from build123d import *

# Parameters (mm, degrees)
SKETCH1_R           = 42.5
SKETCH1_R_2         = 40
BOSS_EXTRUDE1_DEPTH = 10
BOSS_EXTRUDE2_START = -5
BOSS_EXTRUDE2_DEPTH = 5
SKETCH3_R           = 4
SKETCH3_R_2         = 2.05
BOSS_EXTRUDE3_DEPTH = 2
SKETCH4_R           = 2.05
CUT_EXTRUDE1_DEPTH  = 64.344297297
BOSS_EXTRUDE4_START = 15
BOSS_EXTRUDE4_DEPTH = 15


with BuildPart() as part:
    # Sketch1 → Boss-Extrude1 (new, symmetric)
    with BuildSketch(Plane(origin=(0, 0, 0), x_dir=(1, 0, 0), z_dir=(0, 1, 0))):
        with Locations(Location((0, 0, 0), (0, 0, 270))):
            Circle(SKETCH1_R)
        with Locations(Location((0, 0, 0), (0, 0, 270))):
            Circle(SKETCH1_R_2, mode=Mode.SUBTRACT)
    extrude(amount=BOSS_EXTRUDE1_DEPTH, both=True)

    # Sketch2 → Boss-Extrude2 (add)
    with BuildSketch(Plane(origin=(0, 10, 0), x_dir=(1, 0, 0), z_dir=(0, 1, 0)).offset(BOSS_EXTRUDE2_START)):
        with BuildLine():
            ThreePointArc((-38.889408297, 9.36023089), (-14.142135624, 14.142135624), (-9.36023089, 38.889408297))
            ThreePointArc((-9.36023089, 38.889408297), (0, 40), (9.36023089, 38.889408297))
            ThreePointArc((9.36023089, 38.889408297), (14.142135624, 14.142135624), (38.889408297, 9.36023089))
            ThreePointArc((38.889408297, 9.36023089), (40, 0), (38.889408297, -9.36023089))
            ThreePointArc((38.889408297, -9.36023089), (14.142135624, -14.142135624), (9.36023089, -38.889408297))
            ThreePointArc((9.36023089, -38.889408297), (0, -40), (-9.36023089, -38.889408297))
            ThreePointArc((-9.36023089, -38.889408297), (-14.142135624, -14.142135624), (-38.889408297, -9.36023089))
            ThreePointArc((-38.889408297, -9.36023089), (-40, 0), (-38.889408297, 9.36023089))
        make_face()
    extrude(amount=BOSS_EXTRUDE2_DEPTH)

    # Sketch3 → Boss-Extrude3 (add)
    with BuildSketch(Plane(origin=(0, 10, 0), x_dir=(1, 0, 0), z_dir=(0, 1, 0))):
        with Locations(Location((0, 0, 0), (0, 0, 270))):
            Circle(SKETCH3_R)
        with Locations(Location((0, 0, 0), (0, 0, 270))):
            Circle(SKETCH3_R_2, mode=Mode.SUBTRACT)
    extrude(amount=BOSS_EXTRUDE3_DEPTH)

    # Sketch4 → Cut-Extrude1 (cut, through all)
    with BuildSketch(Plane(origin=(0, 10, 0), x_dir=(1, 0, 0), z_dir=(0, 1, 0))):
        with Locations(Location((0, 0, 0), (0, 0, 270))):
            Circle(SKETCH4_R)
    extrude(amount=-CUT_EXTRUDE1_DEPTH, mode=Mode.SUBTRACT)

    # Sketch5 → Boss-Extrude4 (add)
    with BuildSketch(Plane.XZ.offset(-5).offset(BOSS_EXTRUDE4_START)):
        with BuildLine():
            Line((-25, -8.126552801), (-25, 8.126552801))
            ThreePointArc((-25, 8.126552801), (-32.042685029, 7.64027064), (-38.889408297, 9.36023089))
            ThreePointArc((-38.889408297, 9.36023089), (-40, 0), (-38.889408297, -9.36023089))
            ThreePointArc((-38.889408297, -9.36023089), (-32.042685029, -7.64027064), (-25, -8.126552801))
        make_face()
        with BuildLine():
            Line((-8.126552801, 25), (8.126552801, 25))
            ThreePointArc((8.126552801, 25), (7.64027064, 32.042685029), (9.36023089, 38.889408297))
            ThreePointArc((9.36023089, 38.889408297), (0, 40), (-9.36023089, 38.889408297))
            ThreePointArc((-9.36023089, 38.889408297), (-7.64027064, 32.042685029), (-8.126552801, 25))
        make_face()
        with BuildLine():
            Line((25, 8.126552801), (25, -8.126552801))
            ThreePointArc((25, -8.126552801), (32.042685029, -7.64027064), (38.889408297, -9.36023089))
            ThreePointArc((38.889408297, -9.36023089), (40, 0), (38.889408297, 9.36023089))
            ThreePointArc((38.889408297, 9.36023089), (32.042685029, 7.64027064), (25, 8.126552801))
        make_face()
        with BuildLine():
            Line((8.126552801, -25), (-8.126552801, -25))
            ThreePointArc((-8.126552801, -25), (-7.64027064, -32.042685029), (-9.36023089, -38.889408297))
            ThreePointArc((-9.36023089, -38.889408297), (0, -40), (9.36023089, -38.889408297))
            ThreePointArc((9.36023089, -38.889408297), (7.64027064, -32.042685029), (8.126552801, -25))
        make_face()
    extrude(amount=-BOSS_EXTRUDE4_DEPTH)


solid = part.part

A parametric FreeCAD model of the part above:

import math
import FreeCAD as App
import Part
import Sketcher
from FreeCAD import Vector
Q = App.Units.Quantity

doc = App.newDocument("Part")
body = doc.addObject("PartDesign::Body", "Body")

sketch1 = body.newObject("Sketcher::SketchObject", "Sketch")
sketch1.AttachmentSupport = (doc.getObject("XZ_Plane"), [""])
sketch1.MapMode = "FlatFace"
sketch1.addGeometry([
    Part.Circle(Vector(0, 0, 0), Vector(0, 0, 1), 42.5),
    Part.Circle(Vector(0, 0, 0), Vector(0, 0, 1), 40),
], False)
sketch1.addConstraint([
    Sketcher.Constraint("Coincident", 0, 3, -1, 1),
    Sketcher.Constraint("Coincident", 1, 3, -1, 1),
    Sketcher.Constraint("Diameter", 0, Q("85 mm")),
    Sketcher.Constraint("Diameter", 1, Q("80 mm")),
])
pad1 = body.newObject("PartDesign::Pad", "Pad")
pad1.Profile = sketch1
pad1.Length = 20
pad1.Midplane = True

sketch2 = body.newObject("Sketcher::SketchObject", "Sketch001")
sketch2.AttachmentSupport = (doc.getObject("XZ_Plane"), [""])
sketch2.MapMode = "FlatFace"
sketch2.AttachmentOffset = App.Placement(Vector(0, 0, -5), App.Rotation())
sketch2.addGeometry([
    Part.ArcOfCircle(Part.Circle(Vector(-30.052038, -30.052038, 0), Vector(0, 0, 1), 22.5), math.radians(-23.127092), math.radians(113.127092)),
    Part.ArcOfCircle(Part.Circle(Vector(0, 0, 0), Vector(0, 0, 1), 40), math.radians(166.466976), math.radians(193.533024)),
    Part.ArcOfCircle(Part.Circle(Vector(-30.052038, 30.052038, 0), Vector(0, 0, 1), 22.5), math.radians(-113.127092), math.radians(23.127092)),
    Part.ArcOfCircle(Part.Circle(Vector(0, 0, 0), Vector(0, 0, 1), 40), math.radians(76.466976), math.radians(103.533024)),
    Part.ArcOfCircle(Part.Circle(Vector(30.052038, 30.052038, 0), Vector(0, 0, 1), 22.5), math.radians(156.872908), math.radians(293.127092)),
    Part.ArcOfCircle(Part.Circle(Vector(0, 0, 0), Vector(0, 0, 1), 40), math.radians(-13.533024), math.radians(13.533024)),
    Part.ArcOfCircle(Part.Circle(Vector(30.052038, -30.052038, 0), Vector(0, 0, 1), 22.5), math.radians(66.872908), math.radians(203.127092)),
    Part.ArcOfCircle(Part.Circle(Vector(0, 0, 0), Vector(0, 0, 1), 40), math.radians(-103.533024), math.radians(-76.466976)),
], False)
sketch2.addConstraint([
    Sketcher.Constraint("Coincident", 0, 2, 1, 2),
    Sketcher.Constraint("Coincident", 1, 1, 2, 1),
    Sketcher.Constraint("Coincident", 2, 2, 3, 2),
    Sketcher.Constraint("Coincident", 3, 1, 4, 1),
    Sketcher.Constraint("Coincident", 4, 2, 5, 2),
    Sketcher.Constraint("Coincident", 5, 1, 6, 1),
    Sketcher.Constraint("Coincident", 6, 2, 7, 2),
    Sketcher.Constraint("Coincident", 7, 1, 0, 1),
    Sketcher.Constraint("Coincident", 1, 3, -1, 1),
    Sketcher.Constraint("Coincident", 3, 3, -1, 1),
    Sketcher.Constraint("Coincident", 5, 3, -1, 1),
    Sketcher.Constraint("Coincident", 7, 3, -1, 1),
    Sketcher.Constraint("Equal", 0, 2),
    Sketcher.Constraint("Equal", 1, 3),
    Sketcher.Constraint("Equal", 2, 4),
    Sketcher.Constraint("Equal", 3, 5),
    Sketcher.Constraint("Equal", 4, 6),
    Sketcher.Constraint("Equal", 5, 7),
    Sketcher.Constraint("Symmetric", 0, 3, 4, 3, -1, 1),
    Sketcher.Constraint("Symmetric", 2, 3, 6, 3, -1, 1),
    Sketcher.Constraint("Symmetric", 2, 3, 4, 3, -2),
    Sketcher.Constraint("Radius", 1, Q("40 mm")),
    Sketcher.Constraint("Radius", 0, Q("22.5 mm")),
    Sketcher.Constraint("DistanceX", 0, 3, -1, 1, Q("30.052038 mm")),
    Sketcher.Constraint("DistanceY", 0, 3, -1, 1, Q("30.052038 mm")),
])
pad2 = body.newObject("PartDesign::Pad", "Pad001")
pad2.Profile = sketch2
pad2.Length = 5
pad2.Reversed = True

sketch3 = body.newObject("Sketcher::SketchObject", "Sketch002")
sketch3.AttachmentSupport = (doc.getObject("XZ_Plane"), [""])
sketch3.MapMode = "FlatFace"
sketch3.AttachmentOffset = App.Placement(Vector(0, 0, -10), App.Rotation())
sketch3.addGeometry([
    Part.Circle(Vector(0, 0, 0), Vector(0, 0, 1), 4),
    Part.Circle(Vector(0, 0, 0), Vector(0, 0, 1), 2.05),
], False)
sketch3.addConstraint([
    Sketcher.Constraint("Coincident", 0, 3, -1, 1),
    Sketcher.Constraint("Coincident", 1, 3, -1, 1),
    Sketcher.Constraint("Diameter", 0, Q("8 mm")),
    Sketcher.Constraint("Diameter", 1, Q("4.1 mm")),
])
pad3 = body.newObject("PartDesign::Pad", "Pad002")
pad3.Profile = sketch3
pad3.Length = 2
pad3.Reversed = True

sketch4 = body.newObject("Sketcher::SketchObject", "Sketch003")
sketch4.AttachmentSupport = (doc.getObject("XZ_Plane"), [""])
sketch4.MapMode = "FlatFace"
sketch4.AttachmentOffset = App.Placement(Vector(0, 0, -10), App.Rotation())
sketch4.addGeometry(Part.Circle(Vector(0, 0, 0), Vector(0, 0, 1), 2.05), False)
sketch4.addConstraint([
    Sketcher.Constraint("Coincident", 0, 3, -1, 1),
    Sketcher.Constraint("Diameter", 0, Q("4.1 mm")),
])
pocket1 = body.newObject("PartDesign::Pocket", "Pocket")
pocket1.Profile = sketch4
pocket1.Type = "ThroughAll"
pocket1.Reversed = True

sketch5 = body.newObject("Sketcher::SketchObject", "Sketch004")
sketch5.AttachmentSupport = (doc.getObject("XZ_Plane"), [""])
sketch5.MapMode = "FlatFace"
sketch5.AttachmentOffset = App.Placement(Vector(0, 0, 10), App.Rotation())
sketch5.addGeometry([
    Part.LineSegment(Vector(-25, -8.126553, 0), Vector(-25, 8.126553, 0)),
    Part.ArcOfCircle(Part.Circle(Vector(-30.052038, 30.052038, 0), Vector(0, 0, 1), 22.5), math.radians(-113.127092), math.radians(-77.024462)),
    Part.ArcOfCircle(Part.Circle(Vector(0, 0, 0), Vector(0, 0, 1), 40), math.radians(166.466976), math.radians(193.533024)),
    Part.ArcOfCircle(Part.Circle(Vector(-30.052038, -30.052038, 0), Vector(0, 0, 1), 22.5), math.radians(77.024462), math.radians(113.127092)),
    Part.LineSegment(Vector(-8.126553, 25, 0), Vector(8.126553, 25, 0)),
    Part.ArcOfCircle(Part.Circle(Vector(30.052038, 30.052038, 0), Vector(0, 0, 1), 22.5), math.radians(156.872908), math.radians(192.975538)),
    Part.ArcOfCircle(Part.Circle(Vector(0, 0, 0), Vector(0, 0, 1), 40), math.radians(76.466976), math.radians(103.533024)),
    Part.ArcOfCircle(Part.Circle(Vector(-30.052038, 30.052038, 0), Vector(0, 0, 1), 22.5), math.radians(-12.975538), math.radians(23.127092)),
    Part.LineSegment(Vector(25, 8.126553, 0), Vector(25, -8.126553, 0)),
    Part.ArcOfCircle(Part.Circle(Vector(30.052038, -30.052038, 0), Vector(0, 0, 1), 22.5), math.radians(66.872908), math.radians(102.975538)),
    Part.ArcOfCircle(Part.Circle(Vector(0, 0, 0), Vector(0, 0, 1), 40), math.radians(-13.533024), math.radians(13.533024)),
    Part.ArcOfCircle(Part.Circle(Vector(30.052038, 30.052038, 0), Vector(0, 0, 1), 22.5), math.radians(-102.975538), math.radians(-66.872908)),
    Part.LineSegment(Vector(8.126553, -25, 0), Vector(-8.126553, -25, 0)),
    Part.ArcOfCircle(Part.Circle(Vector(-30.052038, -30.052038, 0), Vector(0, 0, 1), 22.5), math.radians(-23.127092), math.radians(12.975538)),
    Part.ArcOfCircle(Part.Circle(Vector(0, 0, 0), Vector(0, 0, 1), 40), math.radians(-103.533024), math.radians(-76.466976)),
    Part.ArcOfCircle(Part.Circle(Vector(30.052038, -30.052038, 0), Vector(0, 0, 1), 22.5), math.radians(167.024462), math.radians(203.127092)),
], False)
sketch5.addConstraint([
    Sketcher.Constraint("Coincident", 0, 2, 1, 2),
    Sketcher.Constraint("Coincident", 1, 1, 2, 1),
    Sketcher.Constraint("Coincident", 2, 2, 3, 2),
    Sketcher.Constraint("Coincident", 3, 1, 0, 1),
    Sketcher.Constraint("Coincident", 4, 2, 5, 2),
    Sketcher.Constraint("Coincident", 5, 1, 6, 1),
    Sketcher.Constraint("Coincident", 6, 2, 7, 2),
    Sketcher.Constraint("Coincident", 7, 1, 4, 1),
    Sketcher.Constraint("Coincident", 8, 2, 9, 2),
    Sketcher.Constraint("Coincident", 9, 1, 10, 1),
    Sketcher.Constraint("Coincident", 10, 2, 11, 2),
    Sketcher.Constraint("Coincident", 11, 1, 8, 1),
    Sketcher.Constraint("Coincident", 12, 2, 13, 2),
    Sketcher.Constraint("Coincident", 13, 1, 14, 1),
    Sketcher.Constraint("Coincident", 14, 2, 15, 2),
    Sketcher.Constraint("Coincident", 15, 1, 12, 1),
    Sketcher.Constraint("Vertical", 0),
    Sketcher.Constraint("Horizontal", 4),
    Sketcher.Constraint("Vertical", 8),
    Sketcher.Constraint("Horizontal", 12),
    Sketcher.Constraint("Coincident", 2, 3, -1, 1),
    Sketcher.Constraint("Coincident", 6, 3, -1, 1),
    Sketcher.Constraint("Coincident", 10, 3, -1, 1),
    Sketcher.Constraint("Coincident", 14, 3, -1, 1),
    Sketcher.Constraint("Coincident", 7, 3, 1, 3),
    Sketcher.Constraint("Coincident", 11, 3, 5, 3),
    Sketcher.Constraint("Coincident", 13, 3, 3, 3),
    Sketcher.Constraint("Coincident", 15, 3, 9, 3),
    Sketcher.Constraint("Equal", 1, 3),
    Sketcher.Constraint("Equal", 3, 5),
    Sketcher.Constraint("Equal", 2, 6),
    Sketcher.Constraint("Equal", 5, 7),
    Sketcher.Constraint("Equal", 7, 9),
    Sketcher.Constraint("Equal", 6, 10),
    Sketcher.Constraint("Equal", 9, 11),
    Sketcher.Constraint("Equal", 11, 13),
    Sketcher.Constraint("Equal", 10, 14),
    Sketcher.Constraint("Equal", 13, 15),
    Sketcher.Constraint("Symmetric", 3, 3, 5, 3, -1, 1),
    Sketcher.Constraint("Symmetric", 1, 3, 9, 3, -1, 1),
    Sketcher.Constraint("Symmetric", 1, 3, 5, 3, -2),
    Sketcher.Constraint("Horizontal", 3, 1, 8, 2),
    Sketcher.Constraint("Vertical", 7, 1, 12, 2),
    Sketcher.Constraint("Equal", 12, 0),
    Sketcher.Constraint("Radius", 2, Q("40 mm")),
    Sketcher.Constraint("Radius", 1, Q("22.5 mm")),
    Sketcher.Constraint("DistanceX", 0, 2, -1, 1, Q("25 mm")),
    Sketcher.Constraint("DistanceY", -1, 1, 4, 2, Q("25 mm")),
    Sketcher.Constraint("DistanceX", 4, 1, 4, 2, Q("16.253106 mm")),
])
pad4 = body.newObject("PartDesign::Pad", "Pad003")
pad4.Profile = sketch5
pad4.Length = 15
pad4.Reversed = True

doc.recompute()
